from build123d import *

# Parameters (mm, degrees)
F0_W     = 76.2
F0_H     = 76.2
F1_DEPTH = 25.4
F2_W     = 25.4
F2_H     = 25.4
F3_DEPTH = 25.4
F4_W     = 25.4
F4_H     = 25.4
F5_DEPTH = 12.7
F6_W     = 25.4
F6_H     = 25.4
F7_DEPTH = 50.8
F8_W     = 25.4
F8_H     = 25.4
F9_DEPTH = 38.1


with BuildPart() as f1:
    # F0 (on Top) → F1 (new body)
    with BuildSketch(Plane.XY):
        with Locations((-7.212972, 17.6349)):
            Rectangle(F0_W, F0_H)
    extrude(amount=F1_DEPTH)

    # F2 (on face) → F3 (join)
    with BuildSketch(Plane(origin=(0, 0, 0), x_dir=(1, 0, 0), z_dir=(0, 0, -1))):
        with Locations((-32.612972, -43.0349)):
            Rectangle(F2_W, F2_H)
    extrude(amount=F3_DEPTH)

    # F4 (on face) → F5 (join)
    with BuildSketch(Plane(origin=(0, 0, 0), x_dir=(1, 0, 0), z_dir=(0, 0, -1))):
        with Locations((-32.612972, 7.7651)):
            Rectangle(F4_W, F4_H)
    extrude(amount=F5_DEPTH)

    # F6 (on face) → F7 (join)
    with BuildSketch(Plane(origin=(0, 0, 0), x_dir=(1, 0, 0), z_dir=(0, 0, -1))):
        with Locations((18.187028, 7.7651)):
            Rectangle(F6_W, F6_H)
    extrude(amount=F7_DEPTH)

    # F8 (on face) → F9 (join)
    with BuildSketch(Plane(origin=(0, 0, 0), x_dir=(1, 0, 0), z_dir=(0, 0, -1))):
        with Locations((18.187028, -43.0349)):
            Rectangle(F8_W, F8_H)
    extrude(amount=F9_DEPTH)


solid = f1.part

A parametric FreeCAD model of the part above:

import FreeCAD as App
import Part
import Sketcher
from FreeCAD import Vector
Q = App.Units.Quantity


def add_polygon(sketch, points):
    """Adds a closed chain of lines whose ends are joined by coincident constraints."""
    first, n = sketch.GeometryCount, len(points)
    for a, b in zip(points, points[1:] + points[:1]):
        sketch.addGeometry(Part.LineSegment(App.Vector(*a, 0), App.Vector(*b, 0)), False)
    for i in range(n):
        sketch.addConstraint(Sketcher.Constraint("Coincident", first + i, 2, first + (i + 1) % n, 1))

doc = App.newDocument("Part")
params = doc.addObject("Spreadsheet::Sheet", "Params")
for row, (alias, value) in enumerate([
    ("sketch1_width", "3 in"),
    ("pad1_length", "1 in"),
    ("sketch2_width", "1 in"),
    ("pad2_length", "1 in"),
    ("sketch3_width", "1 in"),
    ("pad3_length", "0.5 in"),
    ("sketch4_width", "1 in"),
    ("pad4_length", "2 in"),
    ("sketch5_width", "1 in"),
    ("pad5_length", "1.5 in"),
], start=1):
    params.set(f"A{row}", alias)
    params.set(f"B{row}", "=" + value)
    params.setAlias(f"B{row}", alias)

body = doc.addObject("PartDesign::Body", "Body")

sketch1 = doc.addObject("Sketcher::SketchObject", "Sketch")
body.addObject(sketch1)
sketch1.AttachmentSupport = (doc.XY_Plane, [""])
sketch1.MapMode = "FlatFace"
add_polygon(sketch1, [(-45.312972, 55.7349), (-45.312972, -20.4651), (30.887028, -20.4651), (30.887028, 55.7349)])
sketch1.addConstraint([
    Sketcher.Constraint("Vertical", 0),
    Sketcher.Constraint("Horizontal", 1),
    Sketcher.Constraint("Vertical", 2),
    Sketcher.Constraint("Horizontal", 3),
    Sketcher.Constraint("Equal", 3, 0),
    Sketcher.Constraint("DistanceX", 1, 1, 1, 2, Q("3 in")),
    Sketcher.Constraint("DistanceY", 0, 2, -1, 1, Q("20.4651 mm")),
    Sketcher.Constraint("DistanceX", -1, 1, 1, 2, Q("30.887028 mm")),
])
sketch1.setExpression("Constraints[9]", "Params.sketch1_width")
pad1 = doc.addObject("PartDesign::Pad", "Pad")
body.addObject(pad1)
pad1.Profile = sketch1
pad1.setExpression("Length", "Params.pad1_length")

sketch2 = doc.addObject("Sketcher::SketchObject", "Sketch001")
body.addObject(sketch2)
sketch2.AttachmentSupport = (doc.XY_Plane, [""])
sketch2.MapMode = "FlatFace"
add_polygon(sketch2, [(-45.312972, 30.3349), (-45.312972, 55.7349), (-19.912972, 55.7349), (-19.912972, 30.3349)])
sketch2.addConstraint([
    Sketcher.Constraint("Vertical", 0),
    Sketcher.Constraint("Horizontal", 1),
    Sketcher.Constraint("Vertical", 2),
    Sketcher.Constraint("Horizontal", 3),
    Sketcher.Constraint("Equal", 3, 0),
    Sketcher.Constraint("DistanceX", 1, 1, 1, 2, Q("1 in")),
    Sketcher.Constraint("DistanceY", -1, 1, 0, 2, Q("55.7349 mm")),
    Sketcher.Constraint("DistanceX", 1, 2, -1, 1, Q("19.912972 mm")),
])
sketch2.setExpression("Constraints[9]", "Params.sketch2_width")
pad2 = doc.addObject("PartDesign::Pad", "Pad001")
body.addObject(pad2)
pad2.Profile = sketch2
pad2.setExpression("Length", "Params.pad2_length")
pad2.Reversed = True

sketch3 = doc.addObject("Sketcher::SketchObject", "Sketch002")
body.addObject(sketch3)
sketch3.AttachmentSupport = (doc.XY_Plane, [""])
sketch3.MapMode = "FlatFace"
add_polygon(sketch3, [(-45.312972, -20.4651), (-45.312972, 4.9349), (-19.912972, 4.9349), (-19.912972, -20.4651)])
sketch3.addConstraint([
    Sketcher.Constraint("Vertical", 0),
    Sketcher.Constraint("Horizontal", 1),
    Sketcher.Constraint("Vertical", 2),
    Sketcher.Constraint("Horizontal", 3),
    Sketcher.Constraint("Equal", 3, 0),
    Sketcher.Constraint("DistanceX", 1, 1, 1, 2, Q("1 in")),
    Sketcher.Constraint("DistanceY", -1, 1, 0, 2, Q("4.9349 mm")),
    Sketcher.Constraint("DistanceX", 1, 2, -1, 1, Q("19.912972 mm")),
])
sketch3.setExpression("Constraints[9]", "Params.sketch3_width")
pad3 = doc.addObject("PartDesign::Pad", "Pad002")
body.addObject(pad3)
pad3.Profile = sketch3
pad3.setExpression("Length", "Params.pad3_length")
pad3.Reversed = True

sketch4 = doc.addObject("Sketcher::SketchObject", "Sketch003")
body.addObject(sketch4)
sketch4.AttachmentSupport = (doc.XY_Plane, [""])
sketch4.MapMode = "FlatFace"
add_polygon(sketch4, [(5.487028, -20.4651), (5.487028, 4.9349), (30.887028, 4.9349), (30.887028, -20.4651)])
sketch4.addConstraint([
    Sketcher.Constraint("Vertical", 0),
    Sketcher.Constraint("Horizontal", 1),
    Sketcher.Constraint("Vertical", 2),
    Sketcher.Constraint("Horizontal", 3),
    Sketcher.Constraint("Equal", 3, 0),
    Sketcher.Constraint("DistanceX", 1, 1, 1, 2, Q("1 in")),
    Sketcher.Constraint("DistanceY", -1, 1, 0, 2, Q("4.9349 mm")),
    Sketcher.Constraint("DistanceX", -1, 1, 1, 2, Q("30.887028 mm")),
])
sketch4.setExpression("Constraints[9]", "Params.sketch4_width")
pad4 = doc.addObject("PartDesign::Pad", "Pad003")
body.addObject(pad4)
pad4.Profile = sketch4
pad4.setExpression("Length", "Params.pad4_length")
pad4.Reversed = True

sketch5 = doc.addObject("Sketcher::SketchObject", "Sketch004")
body.addObject(sketch5)
sketch5.AttachmentSupport = (doc.XY_Plane, [""])
sketch5.MapMode = "FlatFace"
add_polygon(sketch5, [(5.487028, 30.3349), (5.487028, 55.7349), (30.887028, 55.7349), (30.887028, 30.3349)])
sketch5.addConstraint([
    Sketcher.Constraint("Vertical", 0),
    Sketcher.Constraint("Horizontal", 1),
    Sketcher.Constraint("Vertical", 2),
    Sketcher.Constraint("Horizontal", 3),
    Sketcher.Constraint("Equal", 3, 0),
    Sketcher.Constraint("DistanceX", 1, 1, 1, 2, Q("1 in")),
    Sketcher.Constraint("DistanceY", -1, 1, 0, 2, Q("55.7349 mm")),
    Sketcher.Constraint("DistanceX", -1, 1, 1, 2, Q("30.887028 mm")),
])
sketch5.setExpression("Constraints[9]", "Params.sketch5_width")
pad5 = doc.addObject("PartDesign::Pad", "Pad004")
body.addObject(pad5)
pad5.Profile = sketch5
pad5.setExpression("Length", "Params.pad5_length")
pad5.Reversed = True

doc.recompute()
